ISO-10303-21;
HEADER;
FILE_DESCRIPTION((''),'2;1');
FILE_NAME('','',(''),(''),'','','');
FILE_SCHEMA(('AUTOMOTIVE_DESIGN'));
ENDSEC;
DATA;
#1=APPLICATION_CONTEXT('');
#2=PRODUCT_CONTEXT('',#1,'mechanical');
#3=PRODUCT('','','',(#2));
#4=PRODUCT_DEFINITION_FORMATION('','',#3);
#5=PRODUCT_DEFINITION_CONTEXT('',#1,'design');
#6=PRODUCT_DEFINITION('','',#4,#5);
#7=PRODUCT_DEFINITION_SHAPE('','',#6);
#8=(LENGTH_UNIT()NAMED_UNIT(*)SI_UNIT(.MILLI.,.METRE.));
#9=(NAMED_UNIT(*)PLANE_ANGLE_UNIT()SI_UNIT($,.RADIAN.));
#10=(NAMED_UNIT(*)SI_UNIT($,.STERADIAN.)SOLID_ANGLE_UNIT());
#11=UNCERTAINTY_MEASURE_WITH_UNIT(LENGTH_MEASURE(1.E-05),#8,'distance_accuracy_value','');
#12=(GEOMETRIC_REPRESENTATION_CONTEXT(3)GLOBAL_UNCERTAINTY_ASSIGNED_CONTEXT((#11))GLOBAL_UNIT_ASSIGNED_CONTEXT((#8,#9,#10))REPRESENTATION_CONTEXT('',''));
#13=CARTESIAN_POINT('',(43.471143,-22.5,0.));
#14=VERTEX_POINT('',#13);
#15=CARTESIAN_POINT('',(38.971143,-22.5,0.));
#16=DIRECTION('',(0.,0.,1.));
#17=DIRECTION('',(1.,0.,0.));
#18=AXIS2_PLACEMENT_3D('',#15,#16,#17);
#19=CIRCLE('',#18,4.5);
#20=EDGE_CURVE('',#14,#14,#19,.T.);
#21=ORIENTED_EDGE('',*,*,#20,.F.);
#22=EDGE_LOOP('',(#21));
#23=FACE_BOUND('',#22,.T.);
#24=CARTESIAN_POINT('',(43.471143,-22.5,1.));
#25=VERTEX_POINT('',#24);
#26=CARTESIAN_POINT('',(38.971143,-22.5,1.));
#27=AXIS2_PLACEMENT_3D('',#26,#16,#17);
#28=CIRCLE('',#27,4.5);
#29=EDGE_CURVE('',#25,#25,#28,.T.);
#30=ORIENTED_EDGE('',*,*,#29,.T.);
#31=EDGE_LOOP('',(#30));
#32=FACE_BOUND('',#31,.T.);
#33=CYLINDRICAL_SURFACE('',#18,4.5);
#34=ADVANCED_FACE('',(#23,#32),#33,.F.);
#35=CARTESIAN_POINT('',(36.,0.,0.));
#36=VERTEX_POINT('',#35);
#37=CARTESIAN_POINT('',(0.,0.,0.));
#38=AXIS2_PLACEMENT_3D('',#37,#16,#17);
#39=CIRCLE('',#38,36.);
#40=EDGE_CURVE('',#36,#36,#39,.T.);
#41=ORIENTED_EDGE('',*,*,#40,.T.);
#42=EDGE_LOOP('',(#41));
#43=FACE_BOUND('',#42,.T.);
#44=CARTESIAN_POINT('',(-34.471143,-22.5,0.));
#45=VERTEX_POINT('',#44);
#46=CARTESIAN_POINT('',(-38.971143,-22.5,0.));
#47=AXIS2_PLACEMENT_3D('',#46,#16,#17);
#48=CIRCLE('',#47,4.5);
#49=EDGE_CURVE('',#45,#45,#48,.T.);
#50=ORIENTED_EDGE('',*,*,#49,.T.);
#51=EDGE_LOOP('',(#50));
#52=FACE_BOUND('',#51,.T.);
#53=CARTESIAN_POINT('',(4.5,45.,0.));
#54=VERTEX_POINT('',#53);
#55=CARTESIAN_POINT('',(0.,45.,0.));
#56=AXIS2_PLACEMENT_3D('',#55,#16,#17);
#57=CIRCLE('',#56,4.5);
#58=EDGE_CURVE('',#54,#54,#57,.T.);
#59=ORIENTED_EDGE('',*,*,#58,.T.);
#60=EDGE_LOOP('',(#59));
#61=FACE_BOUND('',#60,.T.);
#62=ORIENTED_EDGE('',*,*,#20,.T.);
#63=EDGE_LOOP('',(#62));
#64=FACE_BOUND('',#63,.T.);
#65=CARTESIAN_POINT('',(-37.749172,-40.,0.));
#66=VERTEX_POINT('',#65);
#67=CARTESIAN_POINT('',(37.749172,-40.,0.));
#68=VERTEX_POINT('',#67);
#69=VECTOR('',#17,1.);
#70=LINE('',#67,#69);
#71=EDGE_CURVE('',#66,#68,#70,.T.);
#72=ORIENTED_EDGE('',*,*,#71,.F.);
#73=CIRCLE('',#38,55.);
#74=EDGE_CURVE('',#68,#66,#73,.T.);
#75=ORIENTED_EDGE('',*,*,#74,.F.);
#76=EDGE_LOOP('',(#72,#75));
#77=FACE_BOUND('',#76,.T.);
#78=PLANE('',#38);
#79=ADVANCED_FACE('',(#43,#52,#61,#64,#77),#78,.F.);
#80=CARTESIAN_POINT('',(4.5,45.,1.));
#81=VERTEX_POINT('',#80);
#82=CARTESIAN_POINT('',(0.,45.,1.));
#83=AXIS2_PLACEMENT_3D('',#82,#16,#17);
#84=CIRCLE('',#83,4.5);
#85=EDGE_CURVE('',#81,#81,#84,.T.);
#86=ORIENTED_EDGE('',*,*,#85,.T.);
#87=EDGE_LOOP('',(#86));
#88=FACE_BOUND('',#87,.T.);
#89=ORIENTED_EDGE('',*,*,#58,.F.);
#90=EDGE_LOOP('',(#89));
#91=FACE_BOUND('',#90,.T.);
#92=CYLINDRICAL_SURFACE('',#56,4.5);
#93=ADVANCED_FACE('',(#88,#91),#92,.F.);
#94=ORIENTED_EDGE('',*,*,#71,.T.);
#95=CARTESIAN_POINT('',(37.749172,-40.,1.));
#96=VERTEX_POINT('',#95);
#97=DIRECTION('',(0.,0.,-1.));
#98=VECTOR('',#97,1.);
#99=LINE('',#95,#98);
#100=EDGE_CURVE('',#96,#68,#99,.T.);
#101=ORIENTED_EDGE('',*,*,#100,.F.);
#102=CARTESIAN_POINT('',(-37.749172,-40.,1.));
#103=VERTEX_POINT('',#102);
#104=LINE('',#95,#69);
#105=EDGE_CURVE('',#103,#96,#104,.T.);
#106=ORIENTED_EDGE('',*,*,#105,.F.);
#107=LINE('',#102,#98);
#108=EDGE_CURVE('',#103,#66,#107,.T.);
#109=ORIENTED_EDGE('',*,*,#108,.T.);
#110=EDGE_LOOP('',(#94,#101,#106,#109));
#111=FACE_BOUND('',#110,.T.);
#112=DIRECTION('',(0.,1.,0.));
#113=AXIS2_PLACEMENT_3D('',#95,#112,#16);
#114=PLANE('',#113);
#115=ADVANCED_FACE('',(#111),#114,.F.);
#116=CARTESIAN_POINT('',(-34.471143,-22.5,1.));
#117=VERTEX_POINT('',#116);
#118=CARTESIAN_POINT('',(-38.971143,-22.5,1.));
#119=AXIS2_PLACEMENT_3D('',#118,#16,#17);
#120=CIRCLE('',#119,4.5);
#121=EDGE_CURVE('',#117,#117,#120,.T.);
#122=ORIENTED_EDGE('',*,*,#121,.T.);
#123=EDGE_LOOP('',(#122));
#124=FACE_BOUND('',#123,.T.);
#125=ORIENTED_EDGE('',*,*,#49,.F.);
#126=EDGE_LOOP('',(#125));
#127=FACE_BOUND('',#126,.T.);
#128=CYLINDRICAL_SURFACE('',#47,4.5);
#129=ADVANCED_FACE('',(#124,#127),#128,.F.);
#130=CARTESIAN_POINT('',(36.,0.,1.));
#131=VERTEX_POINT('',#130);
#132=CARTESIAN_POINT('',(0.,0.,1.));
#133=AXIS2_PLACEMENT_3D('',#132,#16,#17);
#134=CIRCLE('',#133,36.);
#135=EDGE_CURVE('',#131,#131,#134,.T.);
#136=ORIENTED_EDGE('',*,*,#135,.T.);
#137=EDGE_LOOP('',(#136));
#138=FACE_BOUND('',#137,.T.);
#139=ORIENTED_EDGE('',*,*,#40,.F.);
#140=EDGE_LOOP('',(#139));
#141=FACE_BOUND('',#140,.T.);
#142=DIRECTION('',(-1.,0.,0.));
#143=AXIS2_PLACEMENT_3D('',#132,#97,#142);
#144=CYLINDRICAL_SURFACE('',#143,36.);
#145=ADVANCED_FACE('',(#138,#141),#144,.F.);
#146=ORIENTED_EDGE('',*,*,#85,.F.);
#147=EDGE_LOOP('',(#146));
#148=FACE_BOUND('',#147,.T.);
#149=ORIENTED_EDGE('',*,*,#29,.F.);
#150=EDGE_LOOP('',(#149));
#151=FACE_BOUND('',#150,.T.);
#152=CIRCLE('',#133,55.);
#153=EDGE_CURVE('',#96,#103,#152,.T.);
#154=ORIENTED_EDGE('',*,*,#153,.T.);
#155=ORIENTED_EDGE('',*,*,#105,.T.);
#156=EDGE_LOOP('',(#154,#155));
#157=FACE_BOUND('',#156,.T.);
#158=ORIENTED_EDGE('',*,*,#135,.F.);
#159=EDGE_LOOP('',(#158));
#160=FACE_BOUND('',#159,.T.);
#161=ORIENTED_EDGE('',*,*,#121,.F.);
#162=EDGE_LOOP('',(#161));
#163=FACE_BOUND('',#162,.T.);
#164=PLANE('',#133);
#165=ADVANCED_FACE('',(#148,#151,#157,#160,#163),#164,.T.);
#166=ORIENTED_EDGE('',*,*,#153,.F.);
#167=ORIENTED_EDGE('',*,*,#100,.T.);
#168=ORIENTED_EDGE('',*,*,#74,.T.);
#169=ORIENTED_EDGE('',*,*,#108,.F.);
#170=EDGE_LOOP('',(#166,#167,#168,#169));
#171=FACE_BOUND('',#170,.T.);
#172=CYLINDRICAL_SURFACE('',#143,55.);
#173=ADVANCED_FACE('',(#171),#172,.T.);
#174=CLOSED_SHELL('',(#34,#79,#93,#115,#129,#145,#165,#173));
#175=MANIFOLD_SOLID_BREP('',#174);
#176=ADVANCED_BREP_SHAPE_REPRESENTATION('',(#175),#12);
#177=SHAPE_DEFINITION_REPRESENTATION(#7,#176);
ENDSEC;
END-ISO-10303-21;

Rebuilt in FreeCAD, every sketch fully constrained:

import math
import FreeCAD as App
import Part
import Sketcher
from FreeCAD import Vector
Q = App.Units.Quantity


def add_polygon(sketch, points):
    """Adds a closed chain of lines whose ends are joined by coincident constraints."""
    first, n = sketch.GeometryCount, len(points)
    for a, b in zip(points, points[1:] + points[:1]):
        sketch.addGeometry(Part.LineSegment(App.Vector(*a, 0), App.Vector(*b, 0)), False)
    for i in range(n):
        sketch.addConstraint(Sketcher.Constraint("Coincident", first + i, 2, first + (i + 1) % n, 1))

doc = App.newDocument("Part")
body = doc.addObject("PartDesign::Body", "Body")

sketch1 = body.newObject("Sketcher::SketchObject", "Sketch")
sketch1.AttachmentSupport = (doc.getObject("XY_Plane"), [""])
sketch1.MapMode = "FlatFace"
sketch1.addGeometry([
    Part.Circle(Vector(0, 0, 0), Vector(0, 0, 1), 55),
    Part.Circle(Vector(0, 0, 0), Vector(0, 0, 1), 36),
], False)
sketch1.addConstraint([
    Sketcher.Constraint("Coincident", 0, 3, -1, 1),
    Sketcher.Constraint("Coincident", 1, 3, -1, 1),
    Sketcher.Constraint("Diameter", 0, Q("110 mm")),
    Sketcher.Constraint("Diameter", 1, Q("72 mm")),
])
pad1 = body.newObject("PartDesign::Pad", "Pad")
pad1.Profile = sketch1
pad1.Length = 1

sketch2 = body.newObject("Sketcher::SketchObject", "Sketch001")
sketch2.AttachmentSupport = (doc.getObject("XY_Plane"), [""])
sketch2.MapMode = "FlatFace"
sketch2.AttachmentOffset = App.Placement(Vector(0, 0, 1), App.Rotation())
sketch2.addGeometry([
    Part.Circle(Vector(0, 45, 0), Vector(0, 0, 1), 4.5),
    Part.Circle(Vector(39, -22.5, 0), Vector(0, 0, 1), 4.5),
    Part.Circle(Vector(-39, -22.5, 0), Vector(0, 0, 1), 4.5),
], False)
sketch2.addConstraint([
    Sketcher.Constraint("Equal", 0, 1),
    Sketcher.Constraint("Equal", 1, 2),
    Sketcher.Constraint("Symmetric", 1, 3, 2, 3, -2),
    Sketcher.Constraint("PointOnObject", 0, 3, -2),
    Sketcher.Constraint("Diameter", 0, Q("9 mm")),
    Sketcher.Constraint("DistanceY", -1, 1, 0, 3, Q("45 mm")),
    Sketcher.Constraint("DistanceY", 1, 3, -1, 1, Q("22.5 mm")),
    Sketcher.Constraint("DistanceX", -1, 1, 1, 3, Q("38.971143 mm")),
])
pocket1 = body.newObject("PartDesign::Pocket", "Pocket")
pocket1.Profile = sketch2
pocket1.Type = "ThroughAll"

sketch3 = body.newObject("Sketcher::SketchObject", "Sketch002")
sketch3.AttachmentSupport = (doc.getObject("XY_Plane"), [""])
sketch3.MapMode = "FlatFace"
add_polygon(sketch3, [(-72, 72), (-72, -72), (72, -72), (72, 72)])
sketch3.addGeometry(Part.ArcOfCircle(Part.Circle(Vector(0, 0, 0), Vector(0, 0, 1), 55), math.radians(-47), math.radians(227)), False)
sketch3.addGeometry(Part.LineSegment(Vector(38, -40, 0), Vector(-38, -40, 0)), False)
sketch3.addConstraint([
    Sketcher.Constraint("Coincident", 4, 1, 5, 1),
    Sketcher.Constraint("Coincident", 5, 2, 4, 2),
    Sketcher.Constraint("Vertical", 0),
    Sketcher.Constraint("Horizontal", 1),
    Sketcher.Constraint("Vertical", 2),
    Sketcher.Constraint("Horizontal", 3),
    Sketcher.Constraint("Horizontal", 5),
    Sketcher.Constraint("Coincident", 4, 3, -1, 1),
    Sketcher.Constraint("Symmetric", 0, 2, 2, 2, -1, 1),
    Sketcher.Constraint("Equal", 3, 0),
    Sketcher.Constraint("Radius", 4, Q("55 mm")),
    Sketcher.Constraint("DistanceY", 4, 1, -1, 1, Q("40 mm")),
    Sketcher.Constraint("DistanceX", 1, 1, 1, 2, Q("143.114 mm")),
])
pocket2 = body.newObject("PartDesign::Pocket", "Pocket001")
pocket2.Profile = sketch3
pocket2.Type = "ThroughAll"
pocket2.Reversed = True

doc.recompute()
